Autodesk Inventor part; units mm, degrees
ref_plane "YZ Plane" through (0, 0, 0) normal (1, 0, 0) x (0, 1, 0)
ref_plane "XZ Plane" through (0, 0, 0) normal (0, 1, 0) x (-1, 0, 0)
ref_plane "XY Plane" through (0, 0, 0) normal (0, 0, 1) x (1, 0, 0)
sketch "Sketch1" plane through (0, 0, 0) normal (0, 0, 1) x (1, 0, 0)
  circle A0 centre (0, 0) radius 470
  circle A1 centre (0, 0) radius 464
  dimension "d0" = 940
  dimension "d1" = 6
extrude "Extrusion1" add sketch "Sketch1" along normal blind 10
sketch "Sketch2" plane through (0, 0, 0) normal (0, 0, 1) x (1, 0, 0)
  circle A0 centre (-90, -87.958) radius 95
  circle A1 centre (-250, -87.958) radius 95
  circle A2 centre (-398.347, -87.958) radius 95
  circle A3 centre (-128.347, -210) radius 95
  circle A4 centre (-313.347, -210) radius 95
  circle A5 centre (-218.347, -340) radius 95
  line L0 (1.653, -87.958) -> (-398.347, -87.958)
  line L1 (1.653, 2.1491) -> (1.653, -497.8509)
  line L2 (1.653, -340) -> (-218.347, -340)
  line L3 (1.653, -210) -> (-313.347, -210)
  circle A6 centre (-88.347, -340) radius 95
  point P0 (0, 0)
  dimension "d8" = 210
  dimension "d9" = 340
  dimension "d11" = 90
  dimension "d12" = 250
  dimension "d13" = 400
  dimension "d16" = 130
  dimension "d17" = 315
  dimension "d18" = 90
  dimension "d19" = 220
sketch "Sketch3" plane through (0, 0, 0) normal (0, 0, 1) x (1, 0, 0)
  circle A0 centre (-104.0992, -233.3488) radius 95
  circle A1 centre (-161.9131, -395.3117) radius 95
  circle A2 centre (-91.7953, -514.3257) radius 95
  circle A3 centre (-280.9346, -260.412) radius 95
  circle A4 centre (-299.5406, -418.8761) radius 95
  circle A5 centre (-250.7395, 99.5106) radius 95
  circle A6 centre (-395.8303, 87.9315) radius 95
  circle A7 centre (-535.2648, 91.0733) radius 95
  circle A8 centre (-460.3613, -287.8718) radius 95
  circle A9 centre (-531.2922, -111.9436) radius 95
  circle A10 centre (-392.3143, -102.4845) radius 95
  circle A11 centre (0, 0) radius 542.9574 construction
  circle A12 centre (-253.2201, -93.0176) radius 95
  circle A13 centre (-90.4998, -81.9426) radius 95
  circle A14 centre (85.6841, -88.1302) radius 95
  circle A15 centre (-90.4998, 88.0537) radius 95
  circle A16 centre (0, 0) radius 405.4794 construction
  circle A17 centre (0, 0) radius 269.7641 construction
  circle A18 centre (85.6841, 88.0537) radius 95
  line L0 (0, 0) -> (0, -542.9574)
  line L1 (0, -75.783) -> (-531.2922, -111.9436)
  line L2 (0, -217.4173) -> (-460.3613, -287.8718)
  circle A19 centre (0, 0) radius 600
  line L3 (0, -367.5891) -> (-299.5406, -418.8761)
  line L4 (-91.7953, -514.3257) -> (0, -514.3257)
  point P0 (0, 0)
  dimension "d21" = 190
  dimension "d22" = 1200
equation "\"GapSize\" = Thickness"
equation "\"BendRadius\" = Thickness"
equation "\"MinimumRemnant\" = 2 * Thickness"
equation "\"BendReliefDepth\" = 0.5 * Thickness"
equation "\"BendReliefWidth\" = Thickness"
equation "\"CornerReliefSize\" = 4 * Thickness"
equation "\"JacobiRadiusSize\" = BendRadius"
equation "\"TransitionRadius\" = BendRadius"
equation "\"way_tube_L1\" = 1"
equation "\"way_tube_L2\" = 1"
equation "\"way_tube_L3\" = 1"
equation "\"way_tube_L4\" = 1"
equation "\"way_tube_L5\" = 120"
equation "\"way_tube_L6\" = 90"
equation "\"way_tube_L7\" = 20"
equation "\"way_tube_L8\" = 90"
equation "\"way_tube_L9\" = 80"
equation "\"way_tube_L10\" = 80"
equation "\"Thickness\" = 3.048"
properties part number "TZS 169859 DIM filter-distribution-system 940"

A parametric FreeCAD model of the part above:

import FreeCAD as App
import Part
import Sketcher
from FreeCAD import Vector
Q = App.Units.Quantity

doc = App.newDocument("Part")
params = doc.addObject("Spreadsheet::Sheet", "Params")
for row, (alias, value) in enumerate([
    ("sketch1_diameter", "940 mm"),
    ("sketch1_diameter2", "928 mm"),
    ("pad1_length", "10 mm"),
], start=1):
    params.set(f"A{row}", alias)
    params.set(f"B{row}", "=" + value)
    params.setAlias(f"B{row}", alias)

body = doc.addObject("PartDesign::Body", "Body")

# Sketch on XY plane
sketch1 = body.newObject("Sketcher::SketchObject", "Sketch")
sketch1.AttachmentSupport = (doc.getObject("XY_Plane"), [""])
sketch1.MapMode = "FlatFace"
sketch1.addGeometry(Part.Circle(Vector(0, 0, 0), Vector(0, 0, 1), 470), False)
sketch1.addGeometry(Part.Circle(Vector(0, 0, 0), Vector(0, 0, 1), 464), False)
sketch1.addConstraint(Sketcher.Constraint("Coincident", 0, 3, -1, 1))
sketch1.addConstraint(Sketcher.Constraint("Coincident", 1, 3, -1, 1))
sketch1.addConstraint(Sketcher.Constraint("Diameter", 0, Q("940 mm")))
sketch1.addConstraint(Sketcher.Constraint("Diameter", 1, Q("928 mm")))
sketch1.setExpression("Constraints[2]", "Params.sketch1_diameter")
sketch1.setExpression("Constraints[3]", "Params.sketch1_diameter2")
pad1 = body.newObject("PartDesign::Pad", "Pad")
pad1.Profile = sketch1
pad1.setExpression("Length", "Params.pad1_length")

doc.recompute()
